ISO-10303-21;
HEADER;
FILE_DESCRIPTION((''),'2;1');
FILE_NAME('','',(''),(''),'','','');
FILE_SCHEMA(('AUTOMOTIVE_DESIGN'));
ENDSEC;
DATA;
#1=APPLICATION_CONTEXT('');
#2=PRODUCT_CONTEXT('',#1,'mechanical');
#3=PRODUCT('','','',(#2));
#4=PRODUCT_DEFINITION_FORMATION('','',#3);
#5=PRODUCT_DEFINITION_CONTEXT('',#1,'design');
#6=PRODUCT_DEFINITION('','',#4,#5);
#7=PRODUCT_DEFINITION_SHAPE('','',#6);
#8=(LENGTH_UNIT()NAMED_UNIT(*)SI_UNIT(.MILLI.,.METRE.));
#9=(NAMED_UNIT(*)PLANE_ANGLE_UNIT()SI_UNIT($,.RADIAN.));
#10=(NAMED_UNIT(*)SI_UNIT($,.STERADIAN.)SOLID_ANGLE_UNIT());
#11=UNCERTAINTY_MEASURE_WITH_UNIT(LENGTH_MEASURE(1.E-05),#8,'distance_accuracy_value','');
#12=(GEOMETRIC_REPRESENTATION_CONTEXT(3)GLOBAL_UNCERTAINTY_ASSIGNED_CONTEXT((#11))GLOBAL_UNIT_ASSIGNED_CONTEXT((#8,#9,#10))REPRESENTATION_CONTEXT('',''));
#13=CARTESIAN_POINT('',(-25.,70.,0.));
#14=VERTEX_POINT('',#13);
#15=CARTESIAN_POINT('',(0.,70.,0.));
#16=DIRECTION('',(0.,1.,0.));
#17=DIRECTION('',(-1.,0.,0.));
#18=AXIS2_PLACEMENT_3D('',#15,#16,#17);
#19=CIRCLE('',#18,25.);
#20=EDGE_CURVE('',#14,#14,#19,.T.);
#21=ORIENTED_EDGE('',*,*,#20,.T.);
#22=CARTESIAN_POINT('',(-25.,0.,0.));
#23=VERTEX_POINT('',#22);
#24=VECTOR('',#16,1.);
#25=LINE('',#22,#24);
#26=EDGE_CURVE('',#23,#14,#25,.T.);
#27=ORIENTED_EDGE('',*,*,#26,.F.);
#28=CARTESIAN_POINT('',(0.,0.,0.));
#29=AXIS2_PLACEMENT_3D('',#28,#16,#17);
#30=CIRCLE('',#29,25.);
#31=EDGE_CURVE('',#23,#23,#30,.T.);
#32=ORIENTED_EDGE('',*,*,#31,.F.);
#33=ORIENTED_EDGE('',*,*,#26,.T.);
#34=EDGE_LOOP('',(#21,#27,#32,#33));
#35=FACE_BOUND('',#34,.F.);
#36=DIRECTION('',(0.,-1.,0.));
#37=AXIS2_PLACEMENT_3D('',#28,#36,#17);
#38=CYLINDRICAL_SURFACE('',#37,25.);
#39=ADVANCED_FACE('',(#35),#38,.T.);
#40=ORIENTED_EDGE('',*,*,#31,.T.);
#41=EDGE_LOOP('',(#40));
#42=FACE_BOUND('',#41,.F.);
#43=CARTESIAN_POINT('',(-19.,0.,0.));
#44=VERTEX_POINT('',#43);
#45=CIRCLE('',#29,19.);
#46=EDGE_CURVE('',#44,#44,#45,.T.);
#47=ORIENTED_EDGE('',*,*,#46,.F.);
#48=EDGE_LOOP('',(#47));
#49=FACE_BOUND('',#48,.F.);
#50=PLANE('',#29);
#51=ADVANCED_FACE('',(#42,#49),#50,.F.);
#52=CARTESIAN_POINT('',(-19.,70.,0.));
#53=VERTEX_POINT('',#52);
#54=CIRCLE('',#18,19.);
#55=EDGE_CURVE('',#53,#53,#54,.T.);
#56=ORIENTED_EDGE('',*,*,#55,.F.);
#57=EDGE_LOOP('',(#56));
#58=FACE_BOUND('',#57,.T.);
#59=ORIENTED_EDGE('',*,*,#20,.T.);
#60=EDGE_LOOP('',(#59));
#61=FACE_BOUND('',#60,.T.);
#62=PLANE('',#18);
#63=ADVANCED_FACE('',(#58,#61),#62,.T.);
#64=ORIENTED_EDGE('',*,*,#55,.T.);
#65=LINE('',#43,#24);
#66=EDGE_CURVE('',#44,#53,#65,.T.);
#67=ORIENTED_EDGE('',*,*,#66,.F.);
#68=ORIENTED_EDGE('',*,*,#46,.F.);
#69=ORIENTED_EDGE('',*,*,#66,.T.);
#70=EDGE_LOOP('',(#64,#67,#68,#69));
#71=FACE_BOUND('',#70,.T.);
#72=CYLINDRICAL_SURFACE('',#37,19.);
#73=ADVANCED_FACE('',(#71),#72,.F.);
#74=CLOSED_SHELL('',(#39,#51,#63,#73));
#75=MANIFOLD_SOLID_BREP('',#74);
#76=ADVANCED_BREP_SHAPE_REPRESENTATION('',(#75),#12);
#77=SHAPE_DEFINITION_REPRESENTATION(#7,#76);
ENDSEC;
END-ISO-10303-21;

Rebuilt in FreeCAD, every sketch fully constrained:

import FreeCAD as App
import Part
import Sketcher

V = App.Vector
Q = App.Units.Quantity

doc = App.newDocument("Part")
body = doc.addObject("PartDesign::Body", "Body")

sketch1 = doc.addObject("Sketcher::SketchObject", "Sketch")
body.addObject(sketch1)
sketch1.AttachmentSupport = (doc.XZ_Plane, [""])
sketch1.MapMode = "FlatFace"
sketch1.addGeometry(Part.Circle(V(0, 0, 0), V(0, 0, 1), 25), False)
sketch1.addGeometry(Part.Circle(V(0, 0, 0), V(0, 0, 1), 19), False)
sketch1.addConstraint(Sketcher.Constraint("Coincident", 0, 3, -1, 1))
sketch1.addConstraint(Sketcher.Constraint("Coincident", 1, 3, -1, 1))
sketch1.addConstraint(Sketcher.Constraint("Diameter", 0, Q("50 mm")))
sketch1.addConstraint(Sketcher.Constraint("Diameter", 1, Q("38 mm")))
pad1 = doc.addObject("PartDesign::Pad", "Pad")
body.addObject(pad1)
pad1.Profile = sketch1
pad1.Length = 70
pad1.Reversed = True

doc.recompute()
